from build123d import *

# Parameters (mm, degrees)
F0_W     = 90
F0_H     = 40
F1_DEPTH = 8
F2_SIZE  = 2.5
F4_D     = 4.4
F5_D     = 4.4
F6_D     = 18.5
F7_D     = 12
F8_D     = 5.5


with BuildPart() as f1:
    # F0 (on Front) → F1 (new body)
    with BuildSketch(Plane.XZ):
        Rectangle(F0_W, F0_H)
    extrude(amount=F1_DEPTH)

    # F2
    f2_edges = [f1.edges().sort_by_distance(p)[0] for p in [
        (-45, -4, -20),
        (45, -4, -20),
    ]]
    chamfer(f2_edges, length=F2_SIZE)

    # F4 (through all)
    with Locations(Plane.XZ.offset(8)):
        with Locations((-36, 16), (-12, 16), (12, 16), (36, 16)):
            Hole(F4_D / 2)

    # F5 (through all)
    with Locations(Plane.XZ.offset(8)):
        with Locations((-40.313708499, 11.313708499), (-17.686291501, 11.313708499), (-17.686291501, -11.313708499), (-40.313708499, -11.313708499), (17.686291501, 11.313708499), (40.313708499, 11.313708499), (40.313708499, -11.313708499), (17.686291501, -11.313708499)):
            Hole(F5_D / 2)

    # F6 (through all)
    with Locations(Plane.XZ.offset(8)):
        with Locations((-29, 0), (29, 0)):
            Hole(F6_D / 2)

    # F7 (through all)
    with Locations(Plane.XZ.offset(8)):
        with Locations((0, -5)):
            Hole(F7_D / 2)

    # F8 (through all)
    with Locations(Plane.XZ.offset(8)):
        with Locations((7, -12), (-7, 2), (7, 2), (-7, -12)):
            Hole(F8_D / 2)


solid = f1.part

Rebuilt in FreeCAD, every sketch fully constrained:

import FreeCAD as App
import Part
import Sketcher

V = App.Vector
Q = App.Units.Quantity


def edges_at(feature, points):
    """Names of the edges that pass closest to the given points."""
    edges = feature.Shape.Edges
    near = lambda p: min(range(len(edges)), key=lambda i: edges[i].distToShape(Part.Vertex(*p))[0])
    return sorted({f"Edge{near(p) + 1}" for p in points})


def add_polygon(sketch, points):
    """Adds a closed chain of lines whose ends are joined by coincident constraints."""
    first, n = sketch.GeometryCount, len(points)
    for a, b in zip(points, points[1:] + points[:1]):
        sketch.addGeometry(Part.LineSegment(App.Vector(*a, 0), App.Vector(*b, 0)), False)
    for i in range(n):
        sketch.addConstraint(Sketcher.Constraint("Coincident", first + i, 2, first + (i + 1) % n, 1))

doc = App.newDocument("Part")
params = doc.addObject("Spreadsheet::Sheet", "Params")
for row, (alias, value) in enumerate([
    ("sketch1_width", "90 mm"),
    ("sketch1_height", "40 mm"),
    ("pad1_length", "8 mm"),
    ("chamfer_size", "2.5 mm"),
    ("sketch2_diameter", "4.4 mm"),
    ("hole_diameter", "4.4 mm"),
    ("sketch3_diameter", "4.4 mm"),
    ("hole2_diameter", "4.4 mm"),
    ("sketch4_diameter", "18.5 mm"),
    ("hole3_diameter", "18.5 mm"),
    ("sketch5_diameter", "12 mm"),
    ("hole4_diameter", "12 mm"),
    ("sketch6_diameter", "5.5 mm"),
    ("hole5_diameter", "5.5 mm"),
], start=1):
    params.set(f"A{row}", alias)
    params.set(f"B{row}", "=" + value)
    params.setAlias(f"B{row}", alias)

body = doc.addObject("PartDesign::Body", "Body")

sketch1 = body.newObject("Sketcher::SketchObject", "Sketch")
sketch1.AttachmentSupport = (doc.getObject("XZ_Plane"), [""])
sketch1.MapMode = "FlatFace"
add_polygon(sketch1, [(-45, 20), (-45, -20), (45, -20), (45, 20)])
sketch1.addConstraint(Sketcher.Constraint("Vertical", 0))
sketch1.addConstraint(Sketcher.Constraint("Horizontal", 1))
sketch1.addConstraint(Sketcher.Constraint("Vertical", 2))
sketch1.addConstraint(Sketcher.Constraint("Horizontal", 3))
sketch1.addConstraint(Sketcher.Constraint("Symmetric", 0, 2, 2, 2, -1, 1))
sketch1.addConstraint(Sketcher.Constraint("DistanceX", 1, 1, 1, 2, Q("90 mm")))
sketch1.addConstraint(Sketcher.Constraint("DistanceY", 0, 2, 0, 1, Q("40 mm")))
sketch1.setExpression("Constraints[9]", "Params.sketch1_width")
sketch1.setExpression("Constraints[10]", "Params.sketch1_height")
pad1 = body.newObject("PartDesign::Pad", "Pad")
pad1.Profile = sketch1
pad1.setExpression("Length", "Params.pad1_length")
doc.recompute()

chamfer = body.newObject("PartDesign::Chamfer", "Chamfer")
chamfer.Base = (pad1, edges_at(pad1, [(-45, -4, -20), (45, -4, -20)]))
chamfer.setExpression("Size", "Params.chamfer_size")

sketch2 = body.newObject("Sketcher::SketchObject", "Sketch001")
sketch2.AttachmentSupport = (doc.getObject("XZ_Plane"), [""])
sketch2.MapMode = "FlatFace"
sketch2.AttachmentOffset = App.Placement(V(0, 0, 8), App.Rotation())
sketch2.addGeometry(Part.Circle(V(-36, 16, 0), V(0, 0, 1), 2.2), False)
sketch2.addGeometry(Part.Circle(V(-12, 16, 0), V(0, 0, 1), 2.2), False)
sketch2.addGeometry(Part.Circle(V(12, 16, 0), V(0, 0, 1), 2.2), False)
sketch2.addGeometry(Part.Circle(V(36, 16, 0), V(0, 0, 1), 2.2), False)
sketch2.addConstraint(Sketcher.Constraint("Equal", 0, 1))
sketch2.addConstraint(Sketcher.Constraint("Equal", 1, 2))
sketch2.addConstraint(Sketcher.Constraint("Equal", 2, 3))
sketch2.addConstraint(Sketcher.Constraint("Symmetric", 1, 3, 2, 3, -2))
sketch2.addConstraint(Sketcher.Constraint("Symmetric", 0, 3, 3, 3, -2))
sketch2.addConstraint(Sketcher.Constraint("Horizontal", 0, 3, 1, 3))
sketch2.addConstraint(Sketcher.Constraint("Diameter", 0, Q("4.4 mm")))
sketch2.addConstraint(Sketcher.Constraint("DistanceX", 0, 3, -1, 1, Q("36 mm")))
sketch2.addConstraint(Sketcher.Constraint("DistanceY", -1, 1, 0, 3, Q("16 mm")))
sketch2.addConstraint(Sketcher.Constraint("DistanceX", 1, 3, -1, 1, Q("12 mm")))
sketch2.setExpression("Constraints[6]", "Params.sketch2_diameter")
doc.recompute()
hole = body.newObject("PartDesign::Hole", "Hole")
hole.Profile = sketch2
hole.ThreadType = "None"
hole.setExpression("Diameter", "Params.hole_diameter")
hole.DepthType = "ThroughAll"

sketch3 = body.newObject("Sketcher::SketchObject", "Sketch002")
sketch3.AttachmentSupport = (doc.getObject("XZ_Plane"), [""])
sketch3.MapMode = "FlatFace"
sketch3.AttachmentOffset = App.Placement(V(0, 0, 8), App.Rotation())
sketch3.addGeometry(Part.Circle(V(-40.3, 11.3, 0), V(0, 0, 1), 2.2), False)
sketch3.addGeometry(Part.Circle(V(-17.7, 11.3, 0), V(0, 0, 1), 2.2), False)
sketch3.addGeometry(Part.Circle(V(-17.7, -11.3, 0), V(0, 0, 1), 2.2), False)
sketch3.addGeometry(Part.Circle(V(-40.3, -11.3, 0), V(0, 0, 1), 2.2), False)
sketch3.addGeometry(Part.Circle(V(17.7, 11.3, 0), V(0, 0, 1), 2.2), False)
sketch3.addGeometry(Part.Circle(V(40.3, 11.3, 0), V(0, 0, 1), 2.2), False)
sketch3.addGeometry(Part.Circle(V(40.3, -11.3, 0), V(0, 0, 1), 2.2), False)
sketch3.addGeometry(Part.Circle(V(17.7, -11.3, 0), V(0, 0, 1), 2.2), False)
sketch3.addConstraint(Sketcher.Constraint("Equal", 0, 1))
sketch3.addConstraint(Sketcher.Constraint("Equal", 1, 2))
sketch3.addConstraint(Sketcher.Constraint("Equal", 2, 3))
sketch3.addConstraint(Sketcher.Constraint("Equal", 3, 4))
sketch3.addConstraint(Sketcher.Constraint("Equal", 4, 5))
sketch3.addConstraint(Sketcher.Constraint("Equal", 5, 6))
sketch3.addConstraint(Sketcher.Constraint("Equal", 6, 7))
sketch3.addConstraint(Sketcher.Constraint("Symmetric", 2, 3, 4, 3, -1, 1))
sketch3.addConstraint(Sketcher.Constraint("Symmetric", 3, 3, 5, 3, -1, 1))
sketch3.addConstraint(Sketcher.Constraint("Symmetric", 0, 3, 6, 3, -1, 1))
sketch3.addConstraint(Sketcher.Constraint("Symmetric", 1, 3, 7, 3, -1, 1))
sketch3.addConstraint(Sketcher.Constraint("Symmetric", 1, 3, 4, 3, -2))
sketch3.addConstraint(Sketcher.Constraint("Symmetric", 0, 3, 5, 3, -2))
sketch3.addConstraint(Sketcher.Constraint("Horizontal", 0, 3, 1, 3))
sketch3.addConstraint(Sketcher.Constraint("Diameter", 0, Q("4.4 mm")))
sketch3.addConstraint(Sketcher.Constraint("DistanceX", 0, 3, 4, 3, Q("58 mm")))
sketch3.addConstraint(Sketcher.Constraint("DistanceX", 0, 3, -1, 1, Q("40.313708 mm")))
sketch3.addConstraint(Sketcher.Constraint("DistanceY", -1, 1, 0, 3, Q("11.313708 mm")))
sketch3.setExpression("Constraints[14]", "Params.sketch3_diameter")
doc.recompute()
hole2 = body.newObject("PartDesign::Hole", "Hole001")
hole2.Profile = sketch3
hole2.ThreadType = "None"
hole2.setExpression("Diameter", "Params.hole2_diameter")
hole2.DepthType = "ThroughAll"

sketch4 = body.newObject("Sketcher::SketchObject", "Sketch003")
sketch4.AttachmentSupport = (doc.getObject("XZ_Plane"), [""])
sketch4.MapMode = "FlatFace"
sketch4.AttachmentOffset = App.Placement(V(0, 0, 8), App.Rotation())
sketch4.addGeometry(Part.Circle(V(-29, 0, 0), V(0, 0, 1), 9), False)
sketch4.addGeometry(Part.Circle(V(29, 0, 0), V(0, 0, 1), 9), False)
sketch4.addConstraint(Sketcher.Constraint("Equal", 0, 1))
sketch4.addConstraint(Sketcher.Constraint("Symmetric", 0, 3, 1, 3, -1, 1))
sketch4.addConstraint(Sketcher.Constraint("PointOnObject", 0, 3, -1))
sketch4.addConstraint(Sketcher.Constraint("Diameter", 0, Q("18.5 mm")))
sketch4.addConstraint(Sketcher.Constraint("DistanceX", 0, 3, -1, 1, Q("29 mm")))
sketch4.setExpression("Constraints[3]", "Params.sketch4_diameter")
doc.recompute()
hole3 = body.newObject("PartDesign::Hole", "Hole002")
hole3.Profile = sketch4
hole3.ThreadType = "None"
hole3.setExpression("Diameter", "Params.hole3_diameter")
hole3.DepthType = "ThroughAll"

sketch5 = body.newObject("Sketcher::SketchObject", "Sketch004")
sketch5.AttachmentSupport = (doc.getObject("XZ_Plane"), [""])
sketch5.MapMode = "FlatFace"
sketch5.AttachmentOffset = App.Placement(V(0, 0, 8), App.Rotation())
sketch5.addGeometry(Part.Circle(V(0, -5, 0), V(0, 0, 1), 6), False)
sketch5.addConstraint(Sketcher.Constraint("PointOnObject", 0, 3, -2))
sketch5.addConstraint(Sketcher.Constraint("Diameter", 0, Q("12 mm")))
sketch5.addConstraint(Sketcher.Constraint("DistanceY", 0, 3, -1, 1, Q("5 mm")))
sketch5.setExpression("Constraints[1]", "Params.sketch5_diameter")
doc.recompute()
hole4 = body.newObject("PartDesign::Hole", "Hole003")
hole4.Profile = sketch5
hole4.ThreadType = "None"
hole4.setExpression("Diameter", "Params.hole4_diameter")
hole4.DepthType = "ThroughAll"

sketch6 = body.newObject("Sketcher::SketchObject", "Sketch005")
sketch6.AttachmentSupport = (doc.getObject("XZ_Plane"), [""])
sketch6.MapMode = "FlatFace"
sketch6.AttachmentOffset = App.Placement(V(0, 0, 8), App.Rotation())
sketch6.addGeometry(Part.Circle(V(7, -12, 0), V(0, 0, 1), 2.8), False)
sketch6.addGeometry(Part.Circle(V(-7, 2, 0), V(0, 0, 1), 2.8), False)
sketch6.addGeometry(Part.Circle(V(7, 2, 0), V(0, 0, 1), 2.8), False)
sketch6.addGeometry(Part.Circle(V(-7, -12, 0), V(0, 0, 1), 2.8), False)
sketch6.addConstraint(Sketcher.Constraint("Equal", 0, 1))
sketch6.addConstraint(Sketcher.Constraint("Equal", 1, 2))
sketch6.addConstraint(Sketcher.Constraint("Equal", 2, 3))
sketch6.addConstraint(Sketcher.Constraint("Symmetric", 1, 3, 2, 3, -2))
sketch6.addConstraint(Sketcher.Constraint("Symmetric", 0, 3, 3, 3, -2))
sketch6.addConstraint(Sketcher.Constraint("Vertical", 0, 3, 2, 3))
sketch6.addConstraint(Sketcher.Constraint("Diameter", 0, Q("5.5 mm")))
sketch6.addConstraint(Sketcher.Constraint("DistanceX", -1, 1, 0, 3, Q("7 mm")))
sketch6.addConstraint(Sketcher.Constraint("DistanceY", 0, 3, -1, 1, Q("12 mm")))
sketch6.addConstraint(Sketcher.Constraint("DistanceY", -1, 1, 1, 3, Q("2 mm")))
sketch6.setExpression("Constraints[6]", "Params.sketch6_diameter")
doc.recompute()
hole5 = body.newObject("PartDesign::Hole", "Hole004")
hole5.Profile = sketch6
hole5.ThreadType = "None"
hole5.setExpression("Diameter", "Params.hole5_diameter")
hole5.DepthType = "ThroughAll"

doc.recompute()
